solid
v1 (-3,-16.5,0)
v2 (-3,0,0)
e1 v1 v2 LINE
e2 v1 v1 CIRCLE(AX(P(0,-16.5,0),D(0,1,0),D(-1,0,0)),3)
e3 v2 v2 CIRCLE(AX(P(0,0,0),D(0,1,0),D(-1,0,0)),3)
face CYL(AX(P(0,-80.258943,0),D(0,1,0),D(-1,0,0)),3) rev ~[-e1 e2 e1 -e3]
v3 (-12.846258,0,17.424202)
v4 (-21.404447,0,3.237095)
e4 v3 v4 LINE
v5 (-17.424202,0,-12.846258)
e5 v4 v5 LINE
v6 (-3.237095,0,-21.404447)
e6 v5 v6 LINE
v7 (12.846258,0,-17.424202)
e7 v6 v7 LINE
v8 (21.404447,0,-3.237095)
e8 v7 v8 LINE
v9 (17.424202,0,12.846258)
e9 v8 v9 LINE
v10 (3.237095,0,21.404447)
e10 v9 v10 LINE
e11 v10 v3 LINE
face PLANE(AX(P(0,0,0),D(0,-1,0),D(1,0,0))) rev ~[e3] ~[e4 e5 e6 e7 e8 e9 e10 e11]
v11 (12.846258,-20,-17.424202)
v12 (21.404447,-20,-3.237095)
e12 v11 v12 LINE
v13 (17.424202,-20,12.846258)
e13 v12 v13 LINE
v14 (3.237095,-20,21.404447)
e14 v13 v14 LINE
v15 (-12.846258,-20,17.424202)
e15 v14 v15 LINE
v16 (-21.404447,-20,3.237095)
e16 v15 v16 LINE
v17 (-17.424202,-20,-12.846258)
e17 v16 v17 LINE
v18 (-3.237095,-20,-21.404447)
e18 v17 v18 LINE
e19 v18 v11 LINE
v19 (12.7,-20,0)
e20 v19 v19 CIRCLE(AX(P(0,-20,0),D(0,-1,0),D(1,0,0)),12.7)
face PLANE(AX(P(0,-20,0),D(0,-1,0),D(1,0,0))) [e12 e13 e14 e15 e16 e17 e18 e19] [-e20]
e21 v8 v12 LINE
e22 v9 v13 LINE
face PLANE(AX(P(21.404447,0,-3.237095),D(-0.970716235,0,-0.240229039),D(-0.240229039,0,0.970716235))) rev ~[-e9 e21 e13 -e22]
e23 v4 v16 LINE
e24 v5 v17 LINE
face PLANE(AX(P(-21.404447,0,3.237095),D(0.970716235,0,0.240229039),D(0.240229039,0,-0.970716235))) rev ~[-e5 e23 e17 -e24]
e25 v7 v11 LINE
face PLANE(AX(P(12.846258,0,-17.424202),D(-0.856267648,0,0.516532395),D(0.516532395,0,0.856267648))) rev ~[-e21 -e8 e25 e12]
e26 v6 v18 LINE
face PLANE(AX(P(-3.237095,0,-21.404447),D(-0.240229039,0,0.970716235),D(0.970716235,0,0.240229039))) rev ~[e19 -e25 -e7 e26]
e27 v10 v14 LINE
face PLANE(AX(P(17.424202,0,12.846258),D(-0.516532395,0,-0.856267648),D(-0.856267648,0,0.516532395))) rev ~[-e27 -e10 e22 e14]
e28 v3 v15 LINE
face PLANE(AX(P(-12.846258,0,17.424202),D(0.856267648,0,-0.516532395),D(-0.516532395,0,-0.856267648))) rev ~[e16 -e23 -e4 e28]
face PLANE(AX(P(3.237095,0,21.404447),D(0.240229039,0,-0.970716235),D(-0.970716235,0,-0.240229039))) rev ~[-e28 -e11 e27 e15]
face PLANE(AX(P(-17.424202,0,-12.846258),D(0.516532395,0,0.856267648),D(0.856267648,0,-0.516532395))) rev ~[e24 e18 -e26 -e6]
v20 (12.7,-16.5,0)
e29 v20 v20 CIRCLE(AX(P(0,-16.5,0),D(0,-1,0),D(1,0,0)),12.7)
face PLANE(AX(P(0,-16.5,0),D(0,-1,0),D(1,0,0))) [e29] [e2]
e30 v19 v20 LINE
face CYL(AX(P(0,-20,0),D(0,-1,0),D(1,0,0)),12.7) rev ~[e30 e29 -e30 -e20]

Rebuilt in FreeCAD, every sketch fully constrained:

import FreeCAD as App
import Part
import Sketcher
from FreeCAD import Vector


def add_polygon(sketch, points):
    """Adds a closed chain of lines whose ends are joined by coincident constraints."""
    first, n = sketch.GeometryCount, len(points)
    for a, b in zip(points, points[1:] + points[:1]):
        sketch.addGeometry(Part.LineSegment(App.Vector(*a, 0), App.Vector(*b, 0)), False)
    for i in range(n):
        sketch.addConstraint(Sketcher.Constraint("Coincident", first + i, 2, first + (i + 1) % n, 1))

doc = App.newDocument("Part")
body = doc.addObject("PartDesign::Body", "Body")

# Sketch on XZ plane
sketch1 = body.newObject("Sketcher::SketchObject", "Sketch")
sketch1.AttachmentSupport = (doc.getObject("XZ_Plane"), [""])
sketch1.MapMode = "FlatFace"
add_polygon(sketch1, [(17.424202, 12.846258), (3.237095, 21.404447), (-12.846258, 17.424202), (-21.404447, 3.237095), (-17.424202, -12.846258), (-3.237095, -21.404447), (12.846258, -17.424202), (21.404447, -3.237095)])  # lines 0-7
sketch1.addConstraint([
    Sketcher.Constraint("Symmetric", 0, 2, 4, 2, -1, 1),
    Sketcher.Constraint("Symmetric", 1, 2, 5, 2, -1, 1),
    Sketcher.Constraint("Symmetric", 2, 2, 6, 2, -1, 1),
    Sketcher.Constraint("Symmetric", 3, 2, 7, 2, -1, 1),
    Sketcher.Constraint("Perpendicular", 0, 2),
    Sketcher.Constraint("Perpendicular", 1, 3),
    Sketcher.Constraint("Equal", 0, 1),
    Sketcher.Constraint("Equal", 1, 2),
    Sketcher.Constraint("Equal", 2, 3),
    Sketcher.Constraint("DistanceX", 1, 2, -1, 1, 12.846258),
    Sketcher.Constraint("DistanceX", 2, 2, 1, 2, 8.558189),
    Sketcher.Constraint("DistanceY", 3, 2, 1, 2, 30.27046),
])
pad1 = body.newObject("PartDesign::Pad", "Pad")
pad1.Profile = sketch1
pad1.Length = 20

# Sketch on XZ plane
sketch2 = body.newObject("Sketcher::SketchObject", "Sketch001")
sketch2.AttachmentSupport = (doc.getObject("XZ_Plane"), [""])
sketch2.MapMode = "FlatFace"
sketch2.AttachmentOffset = App.Placement(Vector(0, 0, 20), App.Rotation())
sketch2.addGeometry(Part.Circle(Vector(0, 0, 0), Vector(0, 0, 1), 12.7), False)
sketch2.addConstraint([
    Sketcher.Constraint("Coincident", 0, 3, -1, 1),
    Sketcher.Constraint("Diameter", 0, 25.4),
])
pocket1 = body.newObject("PartDesign::Pocket", "Pocket")
pocket1.Profile = sketch2
pocket1.Length = 3.5

# Sketch on XZ plane
sketch3 = body.newObject("Sketcher::SketchObject", "Sketch002")
sketch3.AttachmentSupport = (doc.getObject("XZ_Plane"), [""])
sketch3.MapMode = "FlatFace"
sketch3.AttachmentOffset = App.Placement(Vector(0, 0, 16.5), App.Rotation())
sketch3.addGeometry(Part.Circle(Vector(0, 0, 0), Vector(0, 0, 1), 3), False)
sketch3.addConstraint([
    Sketcher.Constraint("Coincident", 0, 3, -1, 1),
    Sketcher.Constraint("Diameter", 0, 6.0),
])
doc.recompute()
hole = body.newObject("PartDesign::Hole", "Hole")
hole.Profile = sketch3
hole.ThreadType = "None"
hole.Diameter = 6
hole.DepthType = "ThroughAll"

doc.recompute()
